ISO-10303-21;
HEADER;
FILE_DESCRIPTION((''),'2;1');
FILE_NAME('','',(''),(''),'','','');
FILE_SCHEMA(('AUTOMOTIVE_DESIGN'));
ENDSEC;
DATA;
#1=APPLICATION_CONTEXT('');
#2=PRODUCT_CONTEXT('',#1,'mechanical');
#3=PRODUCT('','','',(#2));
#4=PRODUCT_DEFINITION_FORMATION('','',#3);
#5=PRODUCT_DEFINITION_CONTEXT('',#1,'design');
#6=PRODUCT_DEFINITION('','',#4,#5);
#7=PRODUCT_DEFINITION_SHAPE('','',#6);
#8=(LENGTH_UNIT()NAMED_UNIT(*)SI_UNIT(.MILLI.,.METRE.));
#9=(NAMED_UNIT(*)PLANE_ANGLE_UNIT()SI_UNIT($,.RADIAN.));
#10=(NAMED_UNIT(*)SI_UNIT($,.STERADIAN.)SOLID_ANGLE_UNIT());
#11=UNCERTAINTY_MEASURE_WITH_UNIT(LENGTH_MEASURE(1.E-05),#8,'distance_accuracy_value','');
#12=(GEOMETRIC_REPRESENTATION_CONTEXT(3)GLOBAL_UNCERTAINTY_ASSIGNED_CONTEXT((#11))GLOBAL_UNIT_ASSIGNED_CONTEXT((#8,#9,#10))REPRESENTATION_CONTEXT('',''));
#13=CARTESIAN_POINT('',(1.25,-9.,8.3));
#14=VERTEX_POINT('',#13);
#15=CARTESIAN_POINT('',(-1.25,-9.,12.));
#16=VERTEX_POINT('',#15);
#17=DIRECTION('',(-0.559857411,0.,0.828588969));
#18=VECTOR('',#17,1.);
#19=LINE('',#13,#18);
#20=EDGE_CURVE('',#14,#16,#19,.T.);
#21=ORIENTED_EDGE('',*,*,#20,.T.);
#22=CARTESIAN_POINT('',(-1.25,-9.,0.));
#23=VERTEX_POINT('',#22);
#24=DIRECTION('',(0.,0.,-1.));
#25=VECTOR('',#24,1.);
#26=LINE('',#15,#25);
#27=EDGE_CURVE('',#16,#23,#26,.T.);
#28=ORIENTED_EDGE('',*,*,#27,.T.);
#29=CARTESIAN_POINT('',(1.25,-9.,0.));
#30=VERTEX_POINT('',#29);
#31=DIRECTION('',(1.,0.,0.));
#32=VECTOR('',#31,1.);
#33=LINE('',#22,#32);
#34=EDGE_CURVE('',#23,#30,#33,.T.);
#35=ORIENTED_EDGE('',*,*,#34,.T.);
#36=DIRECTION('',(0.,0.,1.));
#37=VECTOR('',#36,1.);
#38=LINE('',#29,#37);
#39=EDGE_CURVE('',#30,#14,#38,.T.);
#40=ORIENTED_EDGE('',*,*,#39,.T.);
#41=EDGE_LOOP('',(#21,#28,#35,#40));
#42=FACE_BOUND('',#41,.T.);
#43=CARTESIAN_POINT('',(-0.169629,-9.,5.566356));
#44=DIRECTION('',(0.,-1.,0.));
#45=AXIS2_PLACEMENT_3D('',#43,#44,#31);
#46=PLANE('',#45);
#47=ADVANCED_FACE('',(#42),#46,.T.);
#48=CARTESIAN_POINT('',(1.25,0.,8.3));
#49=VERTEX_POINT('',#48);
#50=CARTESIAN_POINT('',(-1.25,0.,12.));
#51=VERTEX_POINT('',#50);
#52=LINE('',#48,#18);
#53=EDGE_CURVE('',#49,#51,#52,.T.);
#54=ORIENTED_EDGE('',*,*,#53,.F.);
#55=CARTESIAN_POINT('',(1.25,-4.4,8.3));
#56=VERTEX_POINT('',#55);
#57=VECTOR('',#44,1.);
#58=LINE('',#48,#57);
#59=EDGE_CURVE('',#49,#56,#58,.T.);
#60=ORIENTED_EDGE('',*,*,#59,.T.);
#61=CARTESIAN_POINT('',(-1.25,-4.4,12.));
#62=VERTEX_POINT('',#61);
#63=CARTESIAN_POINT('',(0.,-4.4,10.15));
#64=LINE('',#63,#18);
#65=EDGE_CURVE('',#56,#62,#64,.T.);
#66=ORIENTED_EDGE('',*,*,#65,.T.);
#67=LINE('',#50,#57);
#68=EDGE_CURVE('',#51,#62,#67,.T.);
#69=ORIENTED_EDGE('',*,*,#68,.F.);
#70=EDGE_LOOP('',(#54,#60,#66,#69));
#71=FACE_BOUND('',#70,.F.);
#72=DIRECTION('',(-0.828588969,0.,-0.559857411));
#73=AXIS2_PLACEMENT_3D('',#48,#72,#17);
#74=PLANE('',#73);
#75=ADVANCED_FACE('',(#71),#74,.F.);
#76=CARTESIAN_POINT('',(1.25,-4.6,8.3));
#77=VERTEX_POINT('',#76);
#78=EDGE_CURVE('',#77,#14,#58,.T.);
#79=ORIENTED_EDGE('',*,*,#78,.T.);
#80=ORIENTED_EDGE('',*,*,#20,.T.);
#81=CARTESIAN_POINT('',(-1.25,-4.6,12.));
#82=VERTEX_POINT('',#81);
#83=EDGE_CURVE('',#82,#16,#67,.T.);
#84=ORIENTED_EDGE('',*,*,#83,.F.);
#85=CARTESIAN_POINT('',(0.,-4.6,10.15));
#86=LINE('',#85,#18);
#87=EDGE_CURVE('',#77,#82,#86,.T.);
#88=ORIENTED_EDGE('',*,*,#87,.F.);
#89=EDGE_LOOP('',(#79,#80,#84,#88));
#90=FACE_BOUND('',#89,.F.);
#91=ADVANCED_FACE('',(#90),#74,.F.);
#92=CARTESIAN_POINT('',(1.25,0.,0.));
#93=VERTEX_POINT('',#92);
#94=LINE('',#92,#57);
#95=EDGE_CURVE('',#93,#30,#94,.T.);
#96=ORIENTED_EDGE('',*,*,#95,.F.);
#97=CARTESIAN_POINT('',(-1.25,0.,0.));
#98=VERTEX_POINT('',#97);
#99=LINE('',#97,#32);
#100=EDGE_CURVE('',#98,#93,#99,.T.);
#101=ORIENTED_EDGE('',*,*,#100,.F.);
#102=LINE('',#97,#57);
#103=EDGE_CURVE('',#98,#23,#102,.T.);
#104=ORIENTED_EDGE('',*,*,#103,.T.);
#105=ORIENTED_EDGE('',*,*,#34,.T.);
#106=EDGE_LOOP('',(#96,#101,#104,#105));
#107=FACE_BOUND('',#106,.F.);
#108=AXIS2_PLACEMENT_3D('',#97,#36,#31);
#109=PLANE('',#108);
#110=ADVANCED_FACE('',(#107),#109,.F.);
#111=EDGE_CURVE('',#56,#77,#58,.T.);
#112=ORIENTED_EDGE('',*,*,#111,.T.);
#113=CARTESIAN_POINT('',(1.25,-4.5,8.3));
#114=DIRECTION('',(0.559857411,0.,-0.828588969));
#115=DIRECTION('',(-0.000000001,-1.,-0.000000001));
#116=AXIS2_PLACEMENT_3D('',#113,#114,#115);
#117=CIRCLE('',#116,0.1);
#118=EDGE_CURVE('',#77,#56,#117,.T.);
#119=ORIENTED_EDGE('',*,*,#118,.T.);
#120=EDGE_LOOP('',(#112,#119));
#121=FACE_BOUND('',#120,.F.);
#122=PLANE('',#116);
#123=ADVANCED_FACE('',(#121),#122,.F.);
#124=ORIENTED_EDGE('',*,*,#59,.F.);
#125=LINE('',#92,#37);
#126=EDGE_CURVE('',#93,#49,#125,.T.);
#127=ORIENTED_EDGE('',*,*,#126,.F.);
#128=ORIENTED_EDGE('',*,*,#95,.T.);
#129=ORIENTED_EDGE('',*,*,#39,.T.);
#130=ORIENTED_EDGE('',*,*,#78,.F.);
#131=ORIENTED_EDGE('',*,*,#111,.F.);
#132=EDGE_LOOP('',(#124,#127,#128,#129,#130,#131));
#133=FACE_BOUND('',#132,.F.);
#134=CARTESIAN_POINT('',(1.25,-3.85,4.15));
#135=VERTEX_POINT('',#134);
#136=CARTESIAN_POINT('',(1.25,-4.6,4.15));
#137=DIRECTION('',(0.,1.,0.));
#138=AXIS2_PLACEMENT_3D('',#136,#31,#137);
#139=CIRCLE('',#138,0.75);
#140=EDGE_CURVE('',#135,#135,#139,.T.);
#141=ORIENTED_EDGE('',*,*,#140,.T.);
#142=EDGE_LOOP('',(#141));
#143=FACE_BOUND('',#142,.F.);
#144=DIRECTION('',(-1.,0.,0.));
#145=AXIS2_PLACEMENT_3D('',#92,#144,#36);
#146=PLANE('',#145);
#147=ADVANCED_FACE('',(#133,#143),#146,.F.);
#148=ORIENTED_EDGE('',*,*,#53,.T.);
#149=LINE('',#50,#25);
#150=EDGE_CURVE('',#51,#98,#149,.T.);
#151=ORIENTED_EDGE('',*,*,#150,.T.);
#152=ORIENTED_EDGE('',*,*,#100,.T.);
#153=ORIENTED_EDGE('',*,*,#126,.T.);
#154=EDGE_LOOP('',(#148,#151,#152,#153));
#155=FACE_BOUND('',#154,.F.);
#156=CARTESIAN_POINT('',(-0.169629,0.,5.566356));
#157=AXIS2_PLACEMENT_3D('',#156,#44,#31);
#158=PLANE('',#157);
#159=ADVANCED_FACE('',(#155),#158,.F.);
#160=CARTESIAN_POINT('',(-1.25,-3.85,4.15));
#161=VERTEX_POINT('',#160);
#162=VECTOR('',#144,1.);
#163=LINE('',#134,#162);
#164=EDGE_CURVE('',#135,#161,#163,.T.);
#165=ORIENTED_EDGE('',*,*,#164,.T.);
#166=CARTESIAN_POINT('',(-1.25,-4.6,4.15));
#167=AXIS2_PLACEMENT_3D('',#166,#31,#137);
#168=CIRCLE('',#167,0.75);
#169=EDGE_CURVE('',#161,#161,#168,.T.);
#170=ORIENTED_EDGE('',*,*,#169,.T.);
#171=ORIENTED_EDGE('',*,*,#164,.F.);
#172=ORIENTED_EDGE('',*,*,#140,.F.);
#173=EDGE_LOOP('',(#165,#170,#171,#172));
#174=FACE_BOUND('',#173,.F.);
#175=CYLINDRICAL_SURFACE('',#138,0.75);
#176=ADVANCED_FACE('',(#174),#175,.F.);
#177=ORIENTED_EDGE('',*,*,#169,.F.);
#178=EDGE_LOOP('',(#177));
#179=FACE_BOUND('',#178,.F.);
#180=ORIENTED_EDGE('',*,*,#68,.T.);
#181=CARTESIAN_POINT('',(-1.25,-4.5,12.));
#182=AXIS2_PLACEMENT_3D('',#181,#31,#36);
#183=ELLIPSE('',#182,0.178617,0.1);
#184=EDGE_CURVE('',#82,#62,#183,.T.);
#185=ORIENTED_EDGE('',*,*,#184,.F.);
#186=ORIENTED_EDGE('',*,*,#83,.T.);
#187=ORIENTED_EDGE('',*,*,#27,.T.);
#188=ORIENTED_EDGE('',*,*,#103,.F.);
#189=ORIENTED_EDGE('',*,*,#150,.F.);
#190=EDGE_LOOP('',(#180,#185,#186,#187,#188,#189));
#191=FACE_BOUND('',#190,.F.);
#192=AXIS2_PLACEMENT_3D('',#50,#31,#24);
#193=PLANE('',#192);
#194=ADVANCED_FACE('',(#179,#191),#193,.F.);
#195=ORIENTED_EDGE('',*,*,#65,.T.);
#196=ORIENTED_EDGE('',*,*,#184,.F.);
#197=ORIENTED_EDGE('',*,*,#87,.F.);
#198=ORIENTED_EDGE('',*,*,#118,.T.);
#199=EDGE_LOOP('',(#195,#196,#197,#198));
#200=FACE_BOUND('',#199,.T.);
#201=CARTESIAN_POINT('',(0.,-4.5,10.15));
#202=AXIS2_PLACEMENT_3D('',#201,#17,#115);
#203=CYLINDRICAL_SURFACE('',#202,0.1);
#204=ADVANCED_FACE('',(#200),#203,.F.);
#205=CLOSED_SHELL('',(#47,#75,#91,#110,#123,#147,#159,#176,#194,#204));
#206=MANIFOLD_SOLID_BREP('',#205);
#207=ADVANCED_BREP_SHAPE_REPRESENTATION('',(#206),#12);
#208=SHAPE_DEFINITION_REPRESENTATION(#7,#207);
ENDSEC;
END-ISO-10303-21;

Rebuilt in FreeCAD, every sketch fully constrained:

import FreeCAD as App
import Part
import Sketcher
from FreeCAD import Vector


def add_polygon(sketch, points):
    """Adds a closed chain of lines whose ends are joined by coincident constraints."""
    first, n = sketch.GeometryCount, len(points)
    for a, b in zip(points, points[1:] + points[:1]):
        sketch.addGeometry(Part.LineSegment(App.Vector(*a, 0), App.Vector(*b, 0)), False)
    for i in range(n):
        sketch.addConstraint(Sketcher.Constraint("Coincident", first + i, 2, first + (i + 1) % n, 1))

doc = App.newDocument("Part")
body = doc.addObject("PartDesign::Body", "Body")

sketch1 = doc.addObject("Sketcher::SketchObject", "Sketch")
body.addObject(sketch1)
sketch1.AttachmentSupport = (doc.XZ_Plane, [""])
sketch1.MapMode = "FlatFace"
add_polygon(sketch1, [(-1.2, 12), (-1.2, 0), (1.2, 0), (1.2, 8.3)])
sketch1.addConstraint([
    Sketcher.Constraint("Vertical", 0),
    Sketcher.Constraint("Horizontal", 1),
    Sketcher.Constraint("Vertical", 2),
    Sketcher.Constraint("Symmetric", 0, 2, 1, 2, -1, 1),
    Sketcher.Constraint("DistanceY", 0, 2, 0, 1, 12.0),
    Sketcher.Constraint("DistanceX", 1, 1, 1, 2, 2.5),
    Sketcher.Constraint("DistanceY", 2, 1, 2, 2, 8.3),
])
pad1 = doc.addObject("PartDesign::Pad", "Pad")
body.addObject(pad1)
pad1.Profile = sketch1
pad1.Length = 9

sketch2 = doc.addObject("Sketcher::SketchObject", "Sketch001")
body.addObject(sketch2)
sketch2.Placement = App.Placement(Vector(4.708501, 0, 3.181419), App.Rotation(Vector(0, 1, 0), Vector(-0.559857411, 0, 0.828588969), Vector(0.828588969, 0, 0.559857411), "ZXY"))
add_polygon(sketch2, [(-4.6, 10.64), (-4.6, 6.18), (-4.5, 6.18), (-4.5, 10.64)])
sketch2.addGeometry(Part.LineSegment(Vector(-4.5, 10.64, 0), Vector(-4.5, 6.18, 0)), True)
sketch2.addConstraint([
    Sketcher.Constraint("Vertical", 0),
    Sketcher.Constraint("Horizontal", 1),
    Sketcher.Constraint("Vertical", 2),
    Sketcher.Constraint("Horizontal", 3),
    Sketcher.Constraint("Vertical", 4),
    Sketcher.Constraint("Coincident", 4, 1, 2, 2),
    Sketcher.Constraint("Horizontal", 0, 2, 4, 2),
    Sketcher.Constraint("DistanceX", 1, 1, 1, 2, 0.1),
    Sketcher.Constraint("DistanceX", 0, 2, -1, 1, 4.6),
    Sketcher.Constraint("DistanceY", 0, 2, 0, 1, 4.465423),
    Sketcher.Constraint("DistanceY", -1, 1, 2, 2, 10.642889),
])
groove = doc.addObject("PartDesign::Groove", "Groove")
body.addObject(groove)
groove.Profile = sketch2
groove.ReferenceAxis = (sketch2, ["Axis0"])
groove.Angle = 360

sketch3 = doc.addObject("Sketcher::SketchObject", "Sketch002")
body.addObject(sketch3)
sketch3.AttachmentSupport = (doc.YZ_Plane, [""])
sketch3.MapMode = "FlatFace"
sketch3.AttachmentOffset = App.Placement(Vector(0, 0, 1.25), App.Rotation())
sketch3.addGeometry(Part.Circle(Vector(-4.6, 4.2, 0), Vector(0, 0, 1), 0.8), False)
sketch3.addConstraint([
    Sketcher.Constraint("Diameter", 0, 1.5),
    Sketcher.Constraint("DistanceX", 0, 3, -1, 1, 4.6),
    Sketcher.Constraint("DistanceY", -1, 1, 0, 3, 4.15),
])
pocket1 = doc.addObject("PartDesign::Pocket", "Pocket")
body.addObject(pocket1)
pocket1.Profile = sketch3
pocket1.Type = "ThroughAll"

doc.recompute()
